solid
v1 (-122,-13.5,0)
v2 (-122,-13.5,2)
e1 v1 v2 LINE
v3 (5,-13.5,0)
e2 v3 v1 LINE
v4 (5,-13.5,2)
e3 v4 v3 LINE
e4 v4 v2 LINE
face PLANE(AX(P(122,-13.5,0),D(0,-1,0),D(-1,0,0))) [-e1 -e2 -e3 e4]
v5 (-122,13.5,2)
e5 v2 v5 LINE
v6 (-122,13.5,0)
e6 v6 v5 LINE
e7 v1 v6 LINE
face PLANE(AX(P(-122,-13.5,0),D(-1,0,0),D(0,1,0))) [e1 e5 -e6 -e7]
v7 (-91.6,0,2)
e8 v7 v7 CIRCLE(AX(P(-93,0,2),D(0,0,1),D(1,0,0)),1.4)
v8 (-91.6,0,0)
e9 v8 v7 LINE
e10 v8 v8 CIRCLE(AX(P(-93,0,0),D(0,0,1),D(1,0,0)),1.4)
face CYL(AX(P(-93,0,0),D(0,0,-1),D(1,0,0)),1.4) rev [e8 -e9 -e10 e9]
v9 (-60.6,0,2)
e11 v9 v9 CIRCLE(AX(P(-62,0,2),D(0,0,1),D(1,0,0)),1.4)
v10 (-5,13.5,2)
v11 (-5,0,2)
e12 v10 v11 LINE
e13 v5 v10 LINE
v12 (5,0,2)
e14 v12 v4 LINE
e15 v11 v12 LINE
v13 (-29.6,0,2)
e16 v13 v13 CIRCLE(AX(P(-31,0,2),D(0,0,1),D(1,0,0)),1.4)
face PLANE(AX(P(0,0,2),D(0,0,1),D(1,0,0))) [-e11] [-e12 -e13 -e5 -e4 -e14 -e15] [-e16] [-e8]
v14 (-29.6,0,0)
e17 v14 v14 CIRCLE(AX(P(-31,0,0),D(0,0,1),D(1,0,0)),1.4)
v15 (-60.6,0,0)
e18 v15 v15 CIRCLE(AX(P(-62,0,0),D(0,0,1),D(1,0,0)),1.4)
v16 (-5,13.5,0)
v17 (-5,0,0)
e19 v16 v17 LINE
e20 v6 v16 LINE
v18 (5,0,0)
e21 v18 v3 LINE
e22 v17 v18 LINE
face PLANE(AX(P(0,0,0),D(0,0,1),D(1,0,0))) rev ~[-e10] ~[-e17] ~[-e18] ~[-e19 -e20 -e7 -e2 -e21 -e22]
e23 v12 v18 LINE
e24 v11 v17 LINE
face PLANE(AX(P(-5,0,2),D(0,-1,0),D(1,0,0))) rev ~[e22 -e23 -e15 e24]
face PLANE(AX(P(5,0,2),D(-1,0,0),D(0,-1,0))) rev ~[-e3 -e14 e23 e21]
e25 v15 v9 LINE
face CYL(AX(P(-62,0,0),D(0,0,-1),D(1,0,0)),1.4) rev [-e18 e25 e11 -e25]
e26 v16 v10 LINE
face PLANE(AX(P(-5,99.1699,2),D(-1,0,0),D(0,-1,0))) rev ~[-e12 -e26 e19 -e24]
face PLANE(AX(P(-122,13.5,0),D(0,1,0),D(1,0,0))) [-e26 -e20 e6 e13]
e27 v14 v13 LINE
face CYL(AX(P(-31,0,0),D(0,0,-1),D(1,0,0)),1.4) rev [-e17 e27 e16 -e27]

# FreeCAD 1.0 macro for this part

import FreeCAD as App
import Part
import Sketcher
from FreeCAD import Vector

doc = App.newDocument("Part")
params = doc.addObject("Spreadsheet::Sheet", "Params")
for row, (alias, value) in enumerate([
    ("sketch1_diameter", "2.8 mm"),
    ("sketch1_width", "244 mm"),
    ("sketch1_height", "27 mm"),
    ("pad1_length", "2 mm"),
    ("sketch2_width", "10 mm"),
    ("sketch2_height", "99.17 mm"),
], start=1):
    params.set(f"A{row}", alias)
    params.set(f"B{row}", "=" + value)
    params.setAlias(f"B{row}", alias)

body = doc.addObject("PartDesign::Body", "Body")

# Sketch on XY plane
sketch1 = doc.addObject("Sketcher::SketchObject", "Sketch")
body.addObject(sketch1)
sketch1.AttachmentSupport = (doc.XY_Plane, [""])
sketch1.MapMode = "FlatFace"
sketch1.addGeometry(Part.LineSegment(Vector(-122, -13.5, 0), Vector(122, -13.5, 0)), False)
sketch1.addGeometry(Part.LineSegment(Vector(122, -13.5, 0), Vector(122, 13.5, 0)), False)
sketch1.addGeometry(Part.LineSegment(Vector(122, 13.5, 0), Vector(-122, 13.5, 0)), False)
sketch1.addGeometry(Part.LineSegment(Vector(-122, 13.5, 0), Vector(-122, -13.5, 0)), False)
sketch1.addGeometry(Part.Circle(Vector(-93, 0, 0), Vector(0, 0, 1), 1.4), False)
sketch1.addGeometry(Part.Circle(Vector(-62, 0, 0), Vector(0, 0, 1), 1.4), False)
sketch1.addGeometry(Part.Circle(Vector(-31, 0, 0), Vector(0, 0, 1), 1.4), False)
sketch1.addGeometry(Part.Circle(Vector(31, 0, 0), Vector(0, 0, 1), 1.4), False)
sketch1.addGeometry(Part.Circle(Vector(62, 0, 0), Vector(0, 0, 1), 1.4), False)
sketch1.addGeometry(Part.Circle(Vector(93, 0, 0), Vector(0, 0, 1), 1.4), False)
sketch1.addConstraint(Sketcher.Constraint("Coincident", 0, 2, 1, 1))
sketch1.addConstraint(Sketcher.Constraint("Coincident", 1, 2, 2, 1))
sketch1.addConstraint(Sketcher.Constraint("Coincident", 2, 2, 3, 1))
sketch1.addConstraint(Sketcher.Constraint("Coincident", 3, 2, 0, 1))
sketch1.addConstraint(Sketcher.Constraint("Horizontal", 0))
sketch1.addConstraint(Sketcher.Constraint("Vertical", 1))
sketch1.addConstraint(Sketcher.Constraint("Horizontal", 2))
sketch1.addConstraint(Sketcher.Constraint("Vertical", 3))
sketch1.addConstraint(Sketcher.Constraint("Equal", 4, 5))
sketch1.addConstraint(Sketcher.Constraint("Equal", 5, 6))
sketch1.addConstraint(Sketcher.Constraint("Equal", 6, 7))
sketch1.addConstraint(Sketcher.Constraint("Equal", 7, 8))
sketch1.addConstraint(Sketcher.Constraint("Equal", 8, 9))
sketch1.addConstraint(Sketcher.Constraint("Symmetric", 6, 3, 7, 3, -1, 1))
sketch1.addConstraint(Sketcher.Constraint("Symmetric", 5, 3, 8, 3, -1, 1))
sketch1.addConstraint(Sketcher.Constraint("Symmetric", 4, 3, 9, 3, -1, 1))
sketch1.addConstraint(Sketcher.Constraint("Symmetric", 0, 2, 2, 2, -1, 1))
sketch1.addConstraint(Sketcher.Constraint("PointOnObject", 4, 3, -1))
sketch1.addConstraint(Sketcher.Constraint("PointOnObject", 5, 3, -1))
sketch1.addConstraint(Sketcher.Constraint("PointOnObject", 6, 3, -1))
sketch1.addConstraint(Sketcher.Constraint("Diameter", 4, 2.8))
sketch1.addConstraint(Sketcher.Constraint("DistanceX", 0, 1, 0, 2, 244.0))
sketch1.addConstraint(Sketcher.Constraint("DistanceY", 1, 1, 1, 2, 27.0))
sketch1.addConstraint(Sketcher.Constraint("DistanceX", 6, 3, -1, 1, 31.0))
sketch1.addConstraint(Sketcher.Constraint("DistanceX", 4, 3, 5, 3, 31.0))
sketch1.addConstraint(Sketcher.Constraint("DistanceX", 5, 3, 6, 3, 31.0))
sketch1.setExpression("Constraints[20]", "Params.sketch1_diameter")
sketch1.setExpression("Constraints[21]", "Params.sketch1_width")
sketch1.setExpression("Constraints[22]", "Params.sketch1_height")
pad1 = doc.addObject("PartDesign::Pad", "Pad")
body.addObject(pad1)
pad1.Profile = sketch1
pad1.setExpression("Length", "Params.pad1_length")

# Sketch on XY plane
sketch2 = doc.addObject("Sketcher::SketchObject", "Sketch001")
body.addObject(sketch2)
sketch2.AttachmentSupport = (doc.XY_Plane, [""])
sketch2.MapMode = "FlatFace"
sketch2.AttachmentOffset = App.Placement(Vector(0, 0, 2), App.Rotation())
sketch2.addGeometry(Part.LineSegment(Vector(232, 99, 0), Vector(-5, 99, 0)), False)
sketch2.addGeometry(Part.LineSegment(Vector(-5, 99, 0), Vector(-5, 0, 0)), False)
sketch2.addGeometry(Part.LineSegment(Vector(-5, 0, 0), Vector(5, 0, 0)), False)
sketch2.addGeometry(Part.LineSegment(Vector(5, 0, 0), Vector(5, -99, 0)), False)
sketch2.addGeometry(Part.LineSegment(Vector(5, -99, 0), Vector(232, -99, 0)), False)
sketch2.addGeometry(Part.LineSegment(Vector(232, -99, 0), Vector(232, 99, 0)), False)
sketch2.addConstraint(Sketcher.Constraint("Coincident", 0, 2, 1, 1))
sketch2.addConstraint(Sketcher.Constraint("Coincident", 1, 2, 2, 1))
sketch2.addConstraint(Sketcher.Constraint("Coincident", 2, 2, 3, 1))
sketch2.addConstraint(Sketcher.Constraint("Coincident", 3, 2, 4, 1))
sketch2.addConstraint(Sketcher.Constraint("Coincident", 4, 2, 5, 1))
sketch2.addConstraint(Sketcher.Constraint("Coincident", 5, 2, 0, 1))
sketch2.addConstraint(Sketcher.Constraint("Horizontal", 0))
sketch2.addConstraint(Sketcher.Constraint("Vertical", 1))
sketch2.addConstraint(Sketcher.Constraint("Horizontal", 2))
sketch2.addConstraint(Sketcher.Constraint("Vertical", 3))
sketch2.addConstraint(Sketcher.Constraint("Horizontal", 4))
sketch2.addConstraint(Sketcher.Constraint("Vertical", 5))
sketch2.addConstraint(Sketcher.Constraint("Symmetric", 1, 2, 2, 2, -1, 1))
sketch2.addConstraint(Sketcher.Constraint("Equal", 1, 3))
sketch2.addConstraint(Sketcher.Constraint("DistanceX", 2, 1, 2, 2, 10.0))
sketch2.addConstraint(Sketcher.Constraint("DistanceY", 1, 2, 1, 1, 99.17))
sketch2.addConstraint(Sketcher.Constraint("DistanceX", 0, 2, 0, 1, 237.2267))
sketch2.setExpression("Constraints[14]", "Params.sketch2_width")
sketch2.setExpression("Constraints[15]", "Params.sketch2_height")
pocket1 = doc.addObject("PartDesign::Pocket", "Pocket")
body.addObject(pocket1)
pocket1.Profile = sketch2
pocket1.Type = "ThroughAll"

doc.recompute()
